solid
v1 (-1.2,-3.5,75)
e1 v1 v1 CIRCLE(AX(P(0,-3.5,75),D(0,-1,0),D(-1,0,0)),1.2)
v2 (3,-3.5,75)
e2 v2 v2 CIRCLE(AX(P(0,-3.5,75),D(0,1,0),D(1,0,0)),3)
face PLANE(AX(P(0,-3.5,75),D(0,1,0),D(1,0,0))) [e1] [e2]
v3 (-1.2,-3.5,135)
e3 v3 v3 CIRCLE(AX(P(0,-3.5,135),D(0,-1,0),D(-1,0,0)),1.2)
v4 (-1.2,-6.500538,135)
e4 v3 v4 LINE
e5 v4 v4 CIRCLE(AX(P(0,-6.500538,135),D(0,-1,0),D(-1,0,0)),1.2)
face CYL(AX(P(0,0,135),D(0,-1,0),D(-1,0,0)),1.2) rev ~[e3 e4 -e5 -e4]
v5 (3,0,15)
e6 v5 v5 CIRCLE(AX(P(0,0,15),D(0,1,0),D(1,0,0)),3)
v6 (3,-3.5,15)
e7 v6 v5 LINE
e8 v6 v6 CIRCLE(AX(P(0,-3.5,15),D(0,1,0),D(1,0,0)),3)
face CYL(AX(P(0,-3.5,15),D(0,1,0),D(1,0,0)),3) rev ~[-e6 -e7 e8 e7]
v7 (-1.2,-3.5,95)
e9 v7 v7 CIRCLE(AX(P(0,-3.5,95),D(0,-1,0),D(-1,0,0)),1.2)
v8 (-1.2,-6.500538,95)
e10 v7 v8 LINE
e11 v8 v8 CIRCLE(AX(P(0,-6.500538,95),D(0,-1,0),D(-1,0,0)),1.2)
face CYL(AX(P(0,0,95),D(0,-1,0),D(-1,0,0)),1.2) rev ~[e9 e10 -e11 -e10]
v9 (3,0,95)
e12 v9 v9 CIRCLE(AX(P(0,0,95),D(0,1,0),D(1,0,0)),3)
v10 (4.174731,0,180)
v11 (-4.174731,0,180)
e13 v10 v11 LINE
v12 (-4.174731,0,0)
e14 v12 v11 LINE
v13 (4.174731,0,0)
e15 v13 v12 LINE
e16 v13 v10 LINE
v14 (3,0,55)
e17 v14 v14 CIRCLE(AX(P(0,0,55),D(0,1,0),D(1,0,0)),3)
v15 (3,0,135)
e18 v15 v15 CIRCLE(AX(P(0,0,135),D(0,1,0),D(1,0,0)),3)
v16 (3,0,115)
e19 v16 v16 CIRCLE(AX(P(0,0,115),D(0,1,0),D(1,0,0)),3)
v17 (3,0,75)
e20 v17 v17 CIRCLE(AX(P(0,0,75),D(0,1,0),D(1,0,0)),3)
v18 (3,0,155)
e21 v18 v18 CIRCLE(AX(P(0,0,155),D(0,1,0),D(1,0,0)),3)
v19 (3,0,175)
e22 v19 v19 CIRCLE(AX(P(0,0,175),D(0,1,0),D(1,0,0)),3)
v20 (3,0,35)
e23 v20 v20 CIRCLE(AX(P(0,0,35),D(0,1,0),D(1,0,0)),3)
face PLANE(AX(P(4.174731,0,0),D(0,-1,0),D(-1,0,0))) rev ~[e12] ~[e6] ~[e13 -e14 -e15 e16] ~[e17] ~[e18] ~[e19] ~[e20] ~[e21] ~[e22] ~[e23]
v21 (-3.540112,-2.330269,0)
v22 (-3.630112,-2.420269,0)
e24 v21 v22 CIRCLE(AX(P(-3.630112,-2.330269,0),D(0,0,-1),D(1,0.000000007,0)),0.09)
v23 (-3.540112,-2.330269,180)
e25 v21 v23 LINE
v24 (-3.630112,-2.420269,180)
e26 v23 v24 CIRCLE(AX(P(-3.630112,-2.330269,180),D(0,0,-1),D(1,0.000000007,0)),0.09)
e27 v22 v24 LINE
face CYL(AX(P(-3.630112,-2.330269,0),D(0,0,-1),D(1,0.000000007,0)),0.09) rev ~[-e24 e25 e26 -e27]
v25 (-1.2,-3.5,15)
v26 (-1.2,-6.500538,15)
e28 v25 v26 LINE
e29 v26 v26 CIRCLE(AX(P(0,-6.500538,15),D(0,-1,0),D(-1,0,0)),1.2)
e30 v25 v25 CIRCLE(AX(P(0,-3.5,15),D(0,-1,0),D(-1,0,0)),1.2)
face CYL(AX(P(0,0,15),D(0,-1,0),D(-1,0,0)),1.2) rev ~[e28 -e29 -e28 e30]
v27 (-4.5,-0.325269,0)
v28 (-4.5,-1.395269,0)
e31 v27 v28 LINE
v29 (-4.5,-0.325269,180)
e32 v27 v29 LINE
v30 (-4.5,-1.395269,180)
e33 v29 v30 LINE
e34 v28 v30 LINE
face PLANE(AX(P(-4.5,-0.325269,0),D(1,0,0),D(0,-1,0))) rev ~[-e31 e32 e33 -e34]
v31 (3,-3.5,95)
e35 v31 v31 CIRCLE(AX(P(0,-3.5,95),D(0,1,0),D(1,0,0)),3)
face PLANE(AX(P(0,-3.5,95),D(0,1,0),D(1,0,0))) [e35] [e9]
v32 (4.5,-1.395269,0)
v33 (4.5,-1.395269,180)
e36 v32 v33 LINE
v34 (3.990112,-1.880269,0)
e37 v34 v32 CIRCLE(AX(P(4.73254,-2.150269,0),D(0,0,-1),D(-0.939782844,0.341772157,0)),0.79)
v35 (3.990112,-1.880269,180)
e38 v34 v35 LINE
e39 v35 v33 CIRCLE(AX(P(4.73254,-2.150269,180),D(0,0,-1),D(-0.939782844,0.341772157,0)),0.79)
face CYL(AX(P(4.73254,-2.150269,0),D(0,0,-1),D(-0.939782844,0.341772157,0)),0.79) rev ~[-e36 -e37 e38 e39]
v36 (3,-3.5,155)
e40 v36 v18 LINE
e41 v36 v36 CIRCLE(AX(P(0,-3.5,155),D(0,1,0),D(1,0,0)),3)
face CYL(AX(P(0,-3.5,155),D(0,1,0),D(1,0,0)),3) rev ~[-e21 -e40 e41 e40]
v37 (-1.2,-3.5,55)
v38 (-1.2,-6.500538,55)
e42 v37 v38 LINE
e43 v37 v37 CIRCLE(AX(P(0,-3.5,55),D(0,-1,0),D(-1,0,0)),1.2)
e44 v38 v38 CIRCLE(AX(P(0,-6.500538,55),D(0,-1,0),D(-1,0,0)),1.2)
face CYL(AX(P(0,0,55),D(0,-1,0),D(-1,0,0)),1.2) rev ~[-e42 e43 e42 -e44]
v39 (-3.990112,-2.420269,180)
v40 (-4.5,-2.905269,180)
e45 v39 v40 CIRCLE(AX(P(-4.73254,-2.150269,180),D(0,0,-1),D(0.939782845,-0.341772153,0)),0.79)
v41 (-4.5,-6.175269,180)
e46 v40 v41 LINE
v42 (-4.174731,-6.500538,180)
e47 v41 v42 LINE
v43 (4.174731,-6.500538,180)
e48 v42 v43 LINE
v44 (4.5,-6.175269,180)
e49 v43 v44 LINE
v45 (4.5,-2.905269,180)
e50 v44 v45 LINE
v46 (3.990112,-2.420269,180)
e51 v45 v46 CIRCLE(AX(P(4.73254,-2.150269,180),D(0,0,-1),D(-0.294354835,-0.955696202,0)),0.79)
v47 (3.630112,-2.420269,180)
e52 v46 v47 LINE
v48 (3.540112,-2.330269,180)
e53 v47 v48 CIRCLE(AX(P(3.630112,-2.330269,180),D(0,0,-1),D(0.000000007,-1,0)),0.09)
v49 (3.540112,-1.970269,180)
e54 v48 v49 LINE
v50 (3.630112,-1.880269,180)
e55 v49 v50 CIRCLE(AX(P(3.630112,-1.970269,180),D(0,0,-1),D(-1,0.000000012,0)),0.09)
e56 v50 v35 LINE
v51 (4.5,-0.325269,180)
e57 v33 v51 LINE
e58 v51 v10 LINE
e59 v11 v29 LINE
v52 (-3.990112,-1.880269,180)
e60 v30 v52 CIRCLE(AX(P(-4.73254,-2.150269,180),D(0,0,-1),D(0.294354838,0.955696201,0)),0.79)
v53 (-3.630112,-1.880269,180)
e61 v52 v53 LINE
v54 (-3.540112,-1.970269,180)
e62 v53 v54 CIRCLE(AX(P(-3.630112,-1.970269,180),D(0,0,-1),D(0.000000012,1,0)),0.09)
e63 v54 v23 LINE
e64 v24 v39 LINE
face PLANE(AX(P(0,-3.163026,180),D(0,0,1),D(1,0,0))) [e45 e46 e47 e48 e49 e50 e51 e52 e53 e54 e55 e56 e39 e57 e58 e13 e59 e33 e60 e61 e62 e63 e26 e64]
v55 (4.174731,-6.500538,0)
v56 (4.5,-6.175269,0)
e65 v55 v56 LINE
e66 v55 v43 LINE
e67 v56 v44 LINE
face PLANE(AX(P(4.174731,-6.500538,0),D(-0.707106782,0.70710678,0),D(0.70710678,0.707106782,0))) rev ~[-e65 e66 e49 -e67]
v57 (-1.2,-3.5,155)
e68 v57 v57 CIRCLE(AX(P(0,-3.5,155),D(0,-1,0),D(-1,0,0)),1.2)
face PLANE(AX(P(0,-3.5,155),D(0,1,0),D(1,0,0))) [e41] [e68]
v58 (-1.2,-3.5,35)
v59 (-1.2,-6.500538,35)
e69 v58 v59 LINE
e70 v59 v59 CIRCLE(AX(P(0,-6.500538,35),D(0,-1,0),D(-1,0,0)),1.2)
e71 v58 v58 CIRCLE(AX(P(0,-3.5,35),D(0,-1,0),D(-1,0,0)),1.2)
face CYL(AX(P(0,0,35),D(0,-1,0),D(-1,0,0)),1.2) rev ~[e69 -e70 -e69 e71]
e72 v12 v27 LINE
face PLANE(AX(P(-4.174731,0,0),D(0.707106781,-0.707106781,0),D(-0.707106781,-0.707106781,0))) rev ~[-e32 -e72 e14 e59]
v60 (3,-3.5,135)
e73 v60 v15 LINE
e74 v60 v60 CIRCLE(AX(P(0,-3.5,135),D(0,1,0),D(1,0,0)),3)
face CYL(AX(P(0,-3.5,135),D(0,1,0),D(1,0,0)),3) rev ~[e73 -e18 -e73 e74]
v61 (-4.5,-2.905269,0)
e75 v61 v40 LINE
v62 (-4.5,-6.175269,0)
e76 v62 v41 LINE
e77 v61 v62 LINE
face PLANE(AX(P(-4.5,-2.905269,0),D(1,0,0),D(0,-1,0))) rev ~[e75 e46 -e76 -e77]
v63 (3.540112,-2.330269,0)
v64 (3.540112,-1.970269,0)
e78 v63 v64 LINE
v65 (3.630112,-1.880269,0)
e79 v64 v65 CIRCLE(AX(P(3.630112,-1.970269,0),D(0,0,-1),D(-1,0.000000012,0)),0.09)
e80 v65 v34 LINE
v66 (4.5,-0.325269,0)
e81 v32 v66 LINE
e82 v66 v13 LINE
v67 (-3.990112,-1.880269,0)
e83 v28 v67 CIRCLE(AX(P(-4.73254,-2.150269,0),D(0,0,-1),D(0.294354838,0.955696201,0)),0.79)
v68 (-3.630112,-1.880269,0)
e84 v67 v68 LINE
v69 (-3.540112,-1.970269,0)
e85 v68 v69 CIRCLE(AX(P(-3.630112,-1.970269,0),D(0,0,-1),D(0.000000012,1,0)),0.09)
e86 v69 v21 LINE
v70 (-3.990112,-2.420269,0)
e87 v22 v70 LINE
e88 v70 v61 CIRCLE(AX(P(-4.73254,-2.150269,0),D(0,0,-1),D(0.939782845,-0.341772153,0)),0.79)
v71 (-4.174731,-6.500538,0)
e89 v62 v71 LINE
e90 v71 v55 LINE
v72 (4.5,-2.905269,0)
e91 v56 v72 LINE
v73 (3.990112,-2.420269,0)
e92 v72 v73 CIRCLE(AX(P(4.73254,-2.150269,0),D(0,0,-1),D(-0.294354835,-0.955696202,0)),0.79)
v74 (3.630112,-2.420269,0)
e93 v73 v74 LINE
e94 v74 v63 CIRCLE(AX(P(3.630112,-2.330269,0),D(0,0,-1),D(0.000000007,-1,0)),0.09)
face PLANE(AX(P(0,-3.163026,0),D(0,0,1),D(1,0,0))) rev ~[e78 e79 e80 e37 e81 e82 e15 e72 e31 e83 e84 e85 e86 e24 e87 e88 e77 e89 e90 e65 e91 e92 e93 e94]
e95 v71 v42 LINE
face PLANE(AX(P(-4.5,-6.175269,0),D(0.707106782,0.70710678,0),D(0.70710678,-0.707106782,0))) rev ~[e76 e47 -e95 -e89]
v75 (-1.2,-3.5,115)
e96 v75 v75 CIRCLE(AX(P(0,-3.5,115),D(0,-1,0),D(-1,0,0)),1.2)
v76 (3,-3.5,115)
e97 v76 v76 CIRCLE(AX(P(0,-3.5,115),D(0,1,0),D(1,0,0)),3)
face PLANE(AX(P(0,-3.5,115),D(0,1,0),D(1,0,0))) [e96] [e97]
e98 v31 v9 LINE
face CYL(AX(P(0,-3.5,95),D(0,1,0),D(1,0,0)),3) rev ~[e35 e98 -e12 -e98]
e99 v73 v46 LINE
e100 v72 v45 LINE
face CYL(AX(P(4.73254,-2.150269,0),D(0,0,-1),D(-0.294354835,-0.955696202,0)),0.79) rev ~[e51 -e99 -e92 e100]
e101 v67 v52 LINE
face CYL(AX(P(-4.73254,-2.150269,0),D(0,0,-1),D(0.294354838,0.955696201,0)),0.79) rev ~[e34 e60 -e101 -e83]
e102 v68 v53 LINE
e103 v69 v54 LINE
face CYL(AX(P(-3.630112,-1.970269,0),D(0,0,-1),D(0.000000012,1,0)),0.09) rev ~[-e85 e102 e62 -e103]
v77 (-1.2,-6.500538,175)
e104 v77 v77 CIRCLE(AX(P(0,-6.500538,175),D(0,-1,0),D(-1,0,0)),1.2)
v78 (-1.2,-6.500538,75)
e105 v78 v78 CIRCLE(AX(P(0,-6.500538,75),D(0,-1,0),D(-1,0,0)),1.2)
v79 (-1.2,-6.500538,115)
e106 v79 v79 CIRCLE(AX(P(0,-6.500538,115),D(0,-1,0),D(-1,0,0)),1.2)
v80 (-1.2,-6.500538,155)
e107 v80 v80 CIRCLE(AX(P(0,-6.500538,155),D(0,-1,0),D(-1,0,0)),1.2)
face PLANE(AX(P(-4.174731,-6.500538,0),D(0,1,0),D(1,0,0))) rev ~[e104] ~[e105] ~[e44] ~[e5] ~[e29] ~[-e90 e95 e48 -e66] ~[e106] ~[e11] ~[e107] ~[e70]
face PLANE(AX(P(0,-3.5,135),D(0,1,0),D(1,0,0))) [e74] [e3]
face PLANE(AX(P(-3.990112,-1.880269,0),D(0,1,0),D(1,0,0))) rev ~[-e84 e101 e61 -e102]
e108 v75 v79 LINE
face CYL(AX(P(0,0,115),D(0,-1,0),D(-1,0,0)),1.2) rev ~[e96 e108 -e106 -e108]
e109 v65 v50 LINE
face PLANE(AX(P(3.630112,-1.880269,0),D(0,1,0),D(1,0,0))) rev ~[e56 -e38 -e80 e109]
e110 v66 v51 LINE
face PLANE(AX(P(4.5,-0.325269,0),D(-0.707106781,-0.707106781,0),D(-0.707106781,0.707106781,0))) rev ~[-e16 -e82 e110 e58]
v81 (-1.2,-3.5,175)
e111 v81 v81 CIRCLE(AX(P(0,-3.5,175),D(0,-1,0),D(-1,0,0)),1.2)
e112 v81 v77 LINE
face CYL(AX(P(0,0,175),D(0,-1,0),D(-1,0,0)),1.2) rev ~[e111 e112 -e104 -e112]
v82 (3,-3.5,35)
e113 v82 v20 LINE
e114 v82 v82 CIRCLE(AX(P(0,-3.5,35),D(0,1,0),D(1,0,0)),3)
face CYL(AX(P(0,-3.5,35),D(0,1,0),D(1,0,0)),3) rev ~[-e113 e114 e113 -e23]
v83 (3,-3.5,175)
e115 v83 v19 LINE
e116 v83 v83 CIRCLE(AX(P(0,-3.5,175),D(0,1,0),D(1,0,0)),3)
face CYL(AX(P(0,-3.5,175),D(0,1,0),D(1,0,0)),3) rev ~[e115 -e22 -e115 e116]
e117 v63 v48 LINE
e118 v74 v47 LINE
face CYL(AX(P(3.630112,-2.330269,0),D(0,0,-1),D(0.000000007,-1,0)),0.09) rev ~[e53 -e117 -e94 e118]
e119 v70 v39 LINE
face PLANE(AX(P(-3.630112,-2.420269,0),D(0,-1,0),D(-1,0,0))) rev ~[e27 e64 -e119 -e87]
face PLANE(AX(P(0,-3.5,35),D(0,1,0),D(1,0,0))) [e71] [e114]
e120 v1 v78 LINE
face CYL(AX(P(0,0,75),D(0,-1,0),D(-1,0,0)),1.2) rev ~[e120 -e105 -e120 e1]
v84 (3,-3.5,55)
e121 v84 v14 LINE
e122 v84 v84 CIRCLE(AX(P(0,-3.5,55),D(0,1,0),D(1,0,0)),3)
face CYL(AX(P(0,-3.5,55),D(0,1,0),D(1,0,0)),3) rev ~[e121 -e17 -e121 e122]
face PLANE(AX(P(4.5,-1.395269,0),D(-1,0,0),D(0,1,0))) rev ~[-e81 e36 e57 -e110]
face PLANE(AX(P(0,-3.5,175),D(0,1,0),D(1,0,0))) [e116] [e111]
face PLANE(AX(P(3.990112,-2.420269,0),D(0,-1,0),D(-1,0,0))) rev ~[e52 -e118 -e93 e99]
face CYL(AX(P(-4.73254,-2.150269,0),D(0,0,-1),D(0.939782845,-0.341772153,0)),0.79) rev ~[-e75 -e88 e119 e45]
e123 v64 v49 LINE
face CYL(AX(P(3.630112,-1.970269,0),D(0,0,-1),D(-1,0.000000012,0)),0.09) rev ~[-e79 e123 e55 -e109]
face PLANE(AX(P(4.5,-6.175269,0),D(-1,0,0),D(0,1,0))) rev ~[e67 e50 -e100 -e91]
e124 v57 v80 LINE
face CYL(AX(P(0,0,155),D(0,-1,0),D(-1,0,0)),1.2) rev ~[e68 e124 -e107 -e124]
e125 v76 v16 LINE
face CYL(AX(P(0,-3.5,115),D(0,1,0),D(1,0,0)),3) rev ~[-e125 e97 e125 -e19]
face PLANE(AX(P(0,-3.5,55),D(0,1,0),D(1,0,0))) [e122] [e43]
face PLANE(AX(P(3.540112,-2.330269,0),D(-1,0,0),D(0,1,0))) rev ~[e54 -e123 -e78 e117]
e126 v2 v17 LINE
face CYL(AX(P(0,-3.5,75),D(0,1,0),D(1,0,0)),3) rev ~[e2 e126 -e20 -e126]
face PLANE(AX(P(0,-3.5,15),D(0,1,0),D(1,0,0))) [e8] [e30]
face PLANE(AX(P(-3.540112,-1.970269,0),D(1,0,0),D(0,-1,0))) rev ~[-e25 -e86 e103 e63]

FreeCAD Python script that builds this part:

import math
import FreeCAD as App
import Part
import Sketcher

doc = App.newDocument("Part")
body = doc.addObject("PartDesign::Body", "Body")

sketch1 = doc.addObject("Sketcher::SketchObject", "Sketch")
body.addObject(sketch1)
sketch1.AttachmentSupport = (doc.XY_Plane, [""])
sketch1.MapMode = "FlatFace"
sketch1.addGeometry([
    Part.LineSegment(App.Vector(-4.5, -2.91, 0), App.Vector(-4.5, -6.18, 0)),
    Part.LineSegment(App.Vector(-4.5, -6.18, 0), App.Vector(-4.17, -6.5, 0)),
    Part.LineSegment(App.Vector(-4.17, -6.5, 0), App.Vector(4.17, -6.5, 0)),
    Part.LineSegment(App.Vector(4.17, -6.5, 0), App.Vector(4.5, -6.18, 0)),
    Part.LineSegment(App.Vector(4.5, -6.18, 0), App.Vector(4.5, -2.91, 0)),
    Part.ArcOfCircle(Part.Circle(App.Vector(4.73, -2.15, 0), App.Vector(0, 0, 1), 0.79), math.radians(-160), math.radians(-107)),
    Part.LineSegment(App.Vector(3.99, -2.42, 0), App.Vector(3.63, -2.42, 0)),
    Part.ArcOfCircle(Part.Circle(App.Vector(3.63, -2.33, 0), App.Vector(0, 0, 1), 0.09), math.radians(180), math.radians(270)),
    Part.LineSegment(App.Vector(3.54, -2.33, 0), App.Vector(3.54, -1.97, 0)),
    Part.ArcOfCircle(Part.Circle(App.Vector(3.63, -1.97, 0), App.Vector(0, 0, 1), 0.09), math.radians(90), math.radians(180)),
    Part.LineSegment(App.Vector(3.63, -1.88, 0), App.Vector(3.99, -1.88, 0)),
    Part.ArcOfCircle(Part.Circle(App.Vector(4.73, -2.15, 0), App.Vector(0, 0, 1), 0.79), math.radians(107), math.radians(160)),
    Part.LineSegment(App.Vector(4.5, -1.4, 0), App.Vector(4.5, -0.33, 0)),
    Part.LineSegment(App.Vector(4.5, -0.33, 0), App.Vector(4.17, 0, 0)),
    Part.LineSegment(App.Vector(4.17, 0, 0), App.Vector(-4.17, 0, 0)),
    Part.LineSegment(App.Vector(-4.17, 0, 0), App.Vector(-4.5, -0.33, 0)),
    Part.LineSegment(App.Vector(-4.5, -0.33, 0), App.Vector(-4.5, -1.4, 0)),
    Part.ArcOfCircle(Part.Circle(App.Vector(-4.73, -2.15, 0), App.Vector(0, 0, 1), 0.79), math.radians(20), math.radians(73)),
    Part.LineSegment(App.Vector(-3.99, -1.88, 0), App.Vector(-3.63, -1.88, 0)),
    Part.ArcOfCircle(Part.Circle(App.Vector(-3.63, -1.97, 0), App.Vector(0, 0, 1), 0.09), math.radians(0), math.radians(90)),
    Part.LineSegment(App.Vector(-3.54, -1.97, 0), App.Vector(-3.54, -2.33, 0)),
    Part.ArcOfCircle(Part.Circle(App.Vector(-3.63, -2.33, 0), App.Vector(0, 0, 1), 0.09), math.radians(-90), math.radians(0)),
    Part.LineSegment(App.Vector(-3.63, -2.42, 0), App.Vector(-3.99, -2.42, 0)),
    Part.ArcOfCircle(Part.Circle(App.Vector(-4.73, -2.15, 0), App.Vector(0, 0, 1), 0.79), math.radians(-73), math.radians(-20)),
], False)
sketch1.addConstraint([
    Sketcher.Constraint("Coincident", 0, 2, 1, 1),
    Sketcher.Constraint("Coincident", 1, 2, 2, 1),
    Sketcher.Constraint("Coincident", 2, 2, 3, 1),
    Sketcher.Constraint("Coincident", 3, 2, 4, 1),
    Sketcher.Constraint("Coincident", 4, 2, 5, 2),
    Sketcher.Constraint("Coincident", 5, 1, 6, 1),
    Sketcher.Constraint("Tangent", 6, 2, 7, 2),
    Sketcher.Constraint("Tangent", 7, 1, 8, 1),
    Sketcher.Constraint("Tangent", 8, 2, 9, 2),
    Sketcher.Constraint("Tangent", 9, 1, 10, 1),
    Sketcher.Constraint("Coincident", 10, 2, 11, 2),
    Sketcher.Constraint("Coincident", 11, 1, 12, 1),
    Sketcher.Constraint("Coincident", 12, 2, 13, 1),
    Sketcher.Constraint("Coincident", 13, 2, 14, 1),
    Sketcher.Constraint("Coincident", 14, 2, 15, 1),
    Sketcher.Constraint("Coincident", 15, 2, 16, 1),
    Sketcher.Constraint("Coincident", 16, 2, 17, 2),
    Sketcher.Constraint("Coincident", 17, 1, 18, 1),
    Sketcher.Constraint("Tangent", 18, 2, 19, 2),
    Sketcher.Constraint("Tangent", 19, 1, 20, 1),
    Sketcher.Constraint("Tangent", 20, 2, 21, 2),
    Sketcher.Constraint("Tangent", 21, 1, 22, 1),
    Sketcher.Constraint("Coincident", 22, 2, 23, 2),
    Sketcher.Constraint("Coincident", 23, 1, 0, 1),
    Sketcher.Constraint("Vertical", 0),
    Sketcher.Constraint("Horizontal", 2),
    Sketcher.Constraint("Vertical", 4),
    Sketcher.Constraint("Horizontal", 6),
    Sketcher.Constraint("Vertical", 8),
    Sketcher.Constraint("Horizontal", 10),
    Sketcher.Constraint("Vertical", 12),
    Sketcher.Constraint("Horizontal", 14),
    Sketcher.Constraint("Vertical", 16),
    Sketcher.Constraint("Horizontal", 18),
    Sketcher.Constraint("Vertical", 20),
    Sketcher.Constraint("Horizontal", 22),
    Sketcher.Constraint("Coincident", 11, 3, 5, 3),
    Sketcher.Constraint("Coincident", 23, 3, 17, 3),
    Sketcher.Constraint("Equal", 7, 9),
    Sketcher.Constraint("Equal", 5, 11),
    Sketcher.Constraint("Equal", 11, 17),
    Sketcher.Constraint("Equal", 9, 19),
    Sketcher.Constraint("Equal", 19, 21),
    Sketcher.Constraint("Equal", 17, 23),
    Sketcher.Constraint("Symmetric", 13, 2, 14, 2, -1, 1),
    Sketcher.Constraint("Symmetric", 5, 3, 17, 3, -2),
    Sketcher.Constraint("Symmetric", 9, 3, 19, 3, -2),
    Sketcher.Constraint("Symmetric", 0, 2, 3, 2, -2),
    Sketcher.Constraint("Symmetric", 12, 2, 15, 2, -2),
    Sketcher.Constraint("Perpendicular", 1, 3),
    Sketcher.Constraint("Perpendicular", 3, 13),
    Sketcher.Constraint("Perpendicular", 13, 15),
    Sketcher.Constraint("Horizontal", 7, 3, 21, 3),
    Sketcher.Constraint("Vertical", 5, 1, 10, 2),
    Sketcher.Constraint("Vertical", 4, 2, 11, 1),
    Sketcher.Constraint("Vertical", 2, 2, 13, 2),
    Sketcher.Constraint("Equal", 22, 8),
    Sketcher.Constraint("Radius", 5, 0.79),
    Sketcher.Constraint("Radius", 7, 0.09),
    Sketcher.Constraint("DistanceX", 6, 2, 6, 1, 0.36),
    Sketcher.Constraint("DistanceY", 0, 2, 0, 1, 3.27),
    Sketcher.Constraint("DistanceY", 12, 1, 12, 2, 1.07),
    Sketcher.Constraint("DistanceX", 0, 2, -1, 1, 4.5),
    Sketcher.Constraint("Distance", 1, 0.46),
    Sketcher.Constraint("DistanceY", 0, 2, 21, 3, 3.845),
])
pad1 = doc.addObject("PartDesign::Pad", "Pad")
body.addObject(pad1)
pad1.Profile = sketch1
pad1.Length = 180

sketch2 = doc.addObject("Sketcher::SketchObject", "Sketch001")
body.addObject(sketch2)
sketch2.AttachmentSupport = (doc.XZ_Plane, [""])
sketch2.MapMode = "FlatFace"
sketch2.addGeometry(Part.Circle(App.Vector(0, 175, 0), App.Vector(0, 0, 1), 1.2), False)
sketch2.addConstraint([
    Sketcher.Constraint("PointOnObject", 0, 3, -2),
    Sketcher.Constraint("Diameter", 0, 2.4),
    Sketcher.Constraint("DistanceY", -1, 1, 0, 3, 175.0),
])
doc.recompute()
hole = doc.addObject("PartDesign::Hole", "Hole")
body.addObject(hole)
hole.Profile = sketch2
hole.ThreadType = "None"
hole.Diameter = 2.4
hole.DepthType = "ThroughAll"
hole.HoleCutType = "Counterbore"
hole.HoleCutDiameter = 6
hole.HoleCutDepth = 3.5
hole.Reversed = True
doc.recompute()

linearpattern = doc.addObject("PartDesign::LinearPattern", "LinearPattern")
body.addObject(linearpattern)
linearpattern.Originals = [hole]
linearpattern.Direction = (doc.Z_Axis, [""])
linearpattern.Mode = "offset"
linearpattern.Offset = 20
linearpattern.Occurrences = 9
linearpattern.Reversed = True
body.Tip = linearpattern

doc.recompute()
